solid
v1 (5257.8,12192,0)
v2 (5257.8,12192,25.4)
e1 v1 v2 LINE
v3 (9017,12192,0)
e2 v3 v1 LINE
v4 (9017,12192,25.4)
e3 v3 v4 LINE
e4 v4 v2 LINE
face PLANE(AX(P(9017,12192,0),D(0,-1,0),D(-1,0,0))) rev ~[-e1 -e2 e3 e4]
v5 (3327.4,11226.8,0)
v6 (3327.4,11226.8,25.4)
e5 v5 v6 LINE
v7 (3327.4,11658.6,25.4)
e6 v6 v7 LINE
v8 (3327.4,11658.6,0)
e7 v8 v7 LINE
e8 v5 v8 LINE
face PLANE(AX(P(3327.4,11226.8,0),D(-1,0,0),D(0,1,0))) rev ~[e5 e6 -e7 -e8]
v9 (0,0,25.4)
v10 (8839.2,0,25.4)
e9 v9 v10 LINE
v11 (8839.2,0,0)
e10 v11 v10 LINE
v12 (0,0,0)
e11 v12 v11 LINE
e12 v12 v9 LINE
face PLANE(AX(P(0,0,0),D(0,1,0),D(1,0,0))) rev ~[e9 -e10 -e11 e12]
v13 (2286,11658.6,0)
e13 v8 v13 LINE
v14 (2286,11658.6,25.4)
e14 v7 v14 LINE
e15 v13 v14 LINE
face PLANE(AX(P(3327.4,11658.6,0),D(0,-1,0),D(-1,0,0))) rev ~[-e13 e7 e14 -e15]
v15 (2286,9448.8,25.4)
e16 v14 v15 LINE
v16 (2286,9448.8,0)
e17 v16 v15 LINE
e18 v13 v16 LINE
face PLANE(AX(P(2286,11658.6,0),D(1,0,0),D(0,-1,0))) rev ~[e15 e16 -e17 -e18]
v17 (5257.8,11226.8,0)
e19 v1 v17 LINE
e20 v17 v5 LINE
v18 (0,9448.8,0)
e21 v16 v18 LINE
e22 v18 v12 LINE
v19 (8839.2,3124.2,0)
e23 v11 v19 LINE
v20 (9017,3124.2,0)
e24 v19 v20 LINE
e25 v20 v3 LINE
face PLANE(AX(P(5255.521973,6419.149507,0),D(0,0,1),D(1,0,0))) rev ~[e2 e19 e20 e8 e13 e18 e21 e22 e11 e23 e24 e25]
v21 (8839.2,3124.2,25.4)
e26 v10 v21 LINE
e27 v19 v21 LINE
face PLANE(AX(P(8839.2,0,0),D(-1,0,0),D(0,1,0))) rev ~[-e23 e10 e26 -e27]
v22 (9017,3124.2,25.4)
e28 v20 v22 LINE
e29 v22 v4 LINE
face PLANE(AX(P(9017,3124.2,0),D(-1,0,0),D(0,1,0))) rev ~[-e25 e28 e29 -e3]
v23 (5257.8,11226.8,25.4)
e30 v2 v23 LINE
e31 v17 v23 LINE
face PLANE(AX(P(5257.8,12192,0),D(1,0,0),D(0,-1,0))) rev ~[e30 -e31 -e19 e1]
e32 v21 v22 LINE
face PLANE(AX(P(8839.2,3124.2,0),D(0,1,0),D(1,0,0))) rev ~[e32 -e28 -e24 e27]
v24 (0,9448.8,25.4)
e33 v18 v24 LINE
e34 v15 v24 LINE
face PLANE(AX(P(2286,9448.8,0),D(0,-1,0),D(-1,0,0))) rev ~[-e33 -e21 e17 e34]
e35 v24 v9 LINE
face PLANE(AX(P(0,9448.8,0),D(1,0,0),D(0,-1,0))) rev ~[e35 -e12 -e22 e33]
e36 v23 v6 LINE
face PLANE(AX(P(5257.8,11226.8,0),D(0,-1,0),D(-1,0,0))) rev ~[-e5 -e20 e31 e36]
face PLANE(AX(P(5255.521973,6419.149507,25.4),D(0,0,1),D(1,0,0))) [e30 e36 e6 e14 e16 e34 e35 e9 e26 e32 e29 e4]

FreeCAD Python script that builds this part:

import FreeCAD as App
import Part
import Sketcher
from FreeCAD import Vector
Q = App.Units.Quantity


def add_polygon(sketch, points):
    """Adds a closed chain of lines whose ends are joined by coincident constraints."""
    first, n = sketch.GeometryCount, len(points)
    for a, b in zip(points, points[1:] + points[:1]):
        sketch.addGeometry(Part.LineSegment(App.Vector(*a, 0), App.Vector(*b, 0)), False)
    for i in range(n):
        sketch.addConstraint(Sketcher.Constraint("Coincident", first + i, 2, first + (i + 1) % n, 1))

doc = App.newDocument("Part")
body = doc.addObject("PartDesign::Body", "Body")

# Sketch on XY plane
sketch1 = doc.addObject("Sketcher::SketchObject", "Sketch")
body.addObject(sketch1)
sketch1.AttachmentSupport = (doc.XY_Plane, [""])
sketch1.MapMode = "FlatFace"
add_polygon(sketch1, [(0, 0), (8839, 0), (8839, 3124), (9017, 3124), (9017, 12192), (5258, 12192), (5258, 11227), (3327, 11227), (3327, 11659), (2286, 11659), (2286, 9449), (0, 9449)])  # lines 0-11
sketch1.addConstraint(Sketcher.Constraint("Horizontal", 0))
sketch1.addConstraint(Sketcher.Constraint("Vertical", 1))
sketch1.addConstraint(Sketcher.Constraint("Horizontal", 2))
sketch1.addConstraint(Sketcher.Constraint("Vertical", 3))
sketch1.addConstraint(Sketcher.Constraint("Horizontal", 4))
sketch1.addConstraint(Sketcher.Constraint("Vertical", 5))
sketch1.addConstraint(Sketcher.Constraint("Horizontal", 6))
sketch1.addConstraint(Sketcher.Constraint("Vertical", 7))
sketch1.addConstraint(Sketcher.Constraint("Horizontal", 8))
sketch1.addConstraint(Sketcher.Constraint("Vertical", 9))
sketch1.addConstraint(Sketcher.Constraint("Horizontal", 10))
sketch1.addConstraint(Sketcher.Constraint("Vertical", 11))
sketch1.addConstraint(Sketcher.Constraint("Coincident", 11, 2, -1, 1))
sketch1.addConstraint(Sketcher.Constraint("DistanceX", 0, 1, 0, 2, Q("348 in")))
sketch1.addConstraint(Sketcher.Constraint("DistanceX", 2, 1, 2, 2, Q("7 in")))
sketch1.addConstraint(Sketcher.Constraint("DistanceX", 4, 2, 4, 1, Q("148 in")))
sketch1.addConstraint(Sketcher.Constraint("DistanceX", 6, 2, 6, 1, Q("76 in")))
sketch1.addConstraint(Sketcher.Constraint("DistanceX", 8, 2, 8, 1, Q("41 in")))
sketch1.addConstraint(Sketcher.Constraint("DistanceY", 1, 1, 1, 2, Q("123 in")))
sketch1.addConstraint(Sketcher.Constraint("DistanceY", 3, 1, 3, 2, Q("357 in")))
sketch1.addConstraint(Sketcher.Constraint("DistanceY", 5, 2, 5, 1, Q("38 in")))
sketch1.addConstraint(Sketcher.Constraint("DistanceY", 7, 1, 7, 2, Q("17 in")))
sketch1.addConstraint(Sketcher.Constraint("DistanceY", 9, 2, 9, 1, Q("87 in")))
pad1 = doc.addObject("PartDesign::Pad", "Pad")
body.addObject(pad1)
pad1.Profile = sketch1
pad1.Length = Q("1 in")

doc.recompute()
